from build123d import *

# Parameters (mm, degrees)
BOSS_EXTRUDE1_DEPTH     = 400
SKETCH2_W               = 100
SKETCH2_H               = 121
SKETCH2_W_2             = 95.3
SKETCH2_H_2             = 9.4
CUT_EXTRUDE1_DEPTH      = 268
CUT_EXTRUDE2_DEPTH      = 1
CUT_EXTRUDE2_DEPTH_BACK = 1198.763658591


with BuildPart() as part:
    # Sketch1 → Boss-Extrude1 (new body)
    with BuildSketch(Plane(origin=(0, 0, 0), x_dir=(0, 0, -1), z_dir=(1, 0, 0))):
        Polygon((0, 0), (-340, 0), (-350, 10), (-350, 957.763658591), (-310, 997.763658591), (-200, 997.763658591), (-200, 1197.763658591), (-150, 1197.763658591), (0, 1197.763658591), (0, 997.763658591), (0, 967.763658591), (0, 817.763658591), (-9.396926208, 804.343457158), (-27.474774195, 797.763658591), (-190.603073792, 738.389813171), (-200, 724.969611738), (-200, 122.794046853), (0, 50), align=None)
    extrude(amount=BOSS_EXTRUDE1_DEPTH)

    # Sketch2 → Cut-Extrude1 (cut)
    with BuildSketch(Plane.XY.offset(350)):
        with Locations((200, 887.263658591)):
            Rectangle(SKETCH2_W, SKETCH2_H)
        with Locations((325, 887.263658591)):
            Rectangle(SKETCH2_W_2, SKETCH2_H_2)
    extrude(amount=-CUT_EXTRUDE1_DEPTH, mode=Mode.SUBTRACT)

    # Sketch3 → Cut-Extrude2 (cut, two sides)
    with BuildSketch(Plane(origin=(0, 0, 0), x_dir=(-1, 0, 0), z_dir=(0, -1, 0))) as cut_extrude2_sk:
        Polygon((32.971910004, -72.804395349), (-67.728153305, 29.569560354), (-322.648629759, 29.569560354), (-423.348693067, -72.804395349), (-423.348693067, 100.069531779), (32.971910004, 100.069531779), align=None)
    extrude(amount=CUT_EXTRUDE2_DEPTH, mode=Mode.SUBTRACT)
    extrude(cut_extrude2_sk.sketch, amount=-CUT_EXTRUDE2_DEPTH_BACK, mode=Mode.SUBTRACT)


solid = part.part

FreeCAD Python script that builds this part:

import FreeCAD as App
import Part
import Sketcher
Q = App.Units.Quantity


def add_polygon(sketch, points):
    """Adds a closed chain of lines whose ends are joined by coincident constraints."""
    first, n = sketch.GeometryCount, len(points)
    for a, b in zip(points, points[1:] + points[:1]):
        sketch.addGeometry(Part.LineSegment(App.Vector(*a, 0), App.Vector(*b, 0)), False)
    for i in range(n):
        sketch.addConstraint(Sketcher.Constraint("Coincident", first + i, 2, first + (i + 1) % n, 1))

doc = App.newDocument("Part")
body = doc.addObject("PartDesign::Body", "Body")

# Sketch on YZ plane
sketch1 = body.newObject("Sketcher::SketchObject", "Sketch")
sketch1.AttachmentSupport = (doc.getObject("YZ_Plane"), [""])
sketch1.MapMode = "FlatFace"
add_polygon(sketch1, [(0, 340), (0, 0), (50, 0), (123, 200), (725, 200), (738, 191), (798, 27), (804, 9), (818, 0), (1198, 0), (1198, 200), (998, 200), (998, 310), (958, 350), (10, 350)])  # lines 0-14
sketch1.addConstraint([
    Sketcher.Constraint("Vertical", 0),
    Sketcher.Constraint("Horizontal", 1),
    Sketcher.Constraint("Horizontal", 3),
    Sketcher.Constraint("Horizontal", 8),
    Sketcher.Constraint("Vertical", 9),
    Sketcher.Constraint("Horizontal", 10),
    Sketcher.Constraint("Vertical", 11),
    Sketcher.Constraint("Horizontal", 13),
    Sketcher.Constraint("Coincident", 0, 2, -1, 1),
    Sketcher.Constraint("PointOnObject", 7, 2, -1),
    Sketcher.Constraint("Parallel", 5, 6),
    Sketcher.Constraint("Parallel", 4, 7),
    Sketcher.Constraint("Perpendicular", 12, 14),
    Sketcher.Constraint("Horizontal", 3, 2, 9, 2),
    Sketcher.Constraint("Equal", 10, 9),
    Sketcher.Constraint("Equal", 4, 7),
    Sketcher.Constraint("DistanceX", 1, 1, 1, 2, Q("50 mm")),
    Sketcher.Constraint("DistanceX", 8, 1, 8, 2, Q("380 mm")),
    Sketcher.Constraint("DistanceX", 10, 2, 10, 1, Q("200 mm")),
    Sketcher.Constraint("DistanceY", 0, 2, 0, 1, Q("340 mm")),
    Sketcher.Constraint("DistanceY", 11, 1, 11, 2, Q("110 mm")),
    Sketcher.Constraint("Angle", 2, Q("70 deg")),
    Sketcher.Constraint("Angle", 4, Q("-35 deg")),
    Sketcher.Constraint("Angle", 5, Q("-70 deg")),
    Sketcher.Constraint("Angle", 12, Q("135 deg")),
    Sketcher.Constraint("DistanceY", -1, 1, 12, 2, Q("350 mm")),
    Sketcher.Constraint("DistanceX", 5, 2, 7, 2, Q("20 mm")),
    Sketcher.Constraint("DistanceX", 13, 2, 13, 1, Q("947.763659 mm")),
    Sketcher.Constraint("DistanceX", 3, 2, 4, 2, Q("13.420201 mm")),
])
pad1 = body.newObject("PartDesign::Pad", "Pad")
pad1.Profile = sketch1
pad1.Length = 400

# Sketch on XY plane
sketch2 = body.newObject("Sketcher::SketchObject", "Sketch001")
sketch2.AttachmentSupport = (doc.getObject("XY_Plane"), [""])
sketch2.MapMode = "FlatFace"
sketch2.AttachmentOffset = App.Placement(App.Vector(0, 0, 350), App.Rotation())
add_polygon(sketch2, [(150, 948), (150, 827), (250, 827), (250, 948)])  # lines 0-3
add_polygon(sketch2, [(277, 892), (277, 883), (373, 883), (373, 892)])  # lines 4-7
sketch2.addConstraint([
    Sketcher.Constraint("Vertical", 0),
    Sketcher.Constraint("Horizontal", 1),
    Sketcher.Constraint("Vertical", 2),
    Sketcher.Constraint("Horizontal", 3),
    Sketcher.Constraint("Vertical", 4),
    Sketcher.Constraint("Horizontal", 5),
    Sketcher.Constraint("Vertical", 6),
    Sketcher.Constraint("Horizontal", 7),
    Sketcher.Constraint("DistanceX", 1, 1, 1, 2, Q("100 mm")),
    Sketcher.Constraint("DistanceY", 0, 2, 0, 1, Q("121 mm")),
    Sketcher.Constraint("DistanceX", 5, 1, 5, 2, Q("95.3 mm")),
    Sketcher.Constraint("DistanceY", 4, 2, 4, 1, Q("9.4 mm")),
    Sketcher.Constraint("DistanceX", -1, 1, 0, 2, Q("150 mm")),
    Sketcher.Constraint("DistanceY", 1, 2, 4, 2, Q("55.8 mm")),
    Sketcher.Constraint("DistanceX", -1, 1, 4, 2, Q("277.35 mm")),
    Sketcher.Constraint("DistanceY", -1, 1, 0, 2, Q("826.763659 mm")),
])
pocket1 = body.newObject("PartDesign::Pocket", "Pocket")
pocket1.Profile = sketch2
pocket1.Length = 268

# Sketch on XZ plane
sketch3 = body.newObject("Sketcher::SketchObject", "Sketch002")
sketch3.AttachmentSupport = (doc.getObject("XZ_Plane"), [""])
sketch3.MapMode = "FlatFace"
add_polygon(sketch3, [(68, -30), (-33, 73), (-33, -100), (423, -100), (423, 73), (323, -30)])  # lines 0-5
sketch3.addConstraint([
    Sketcher.Constraint("Vertical", 1),
    Sketcher.Constraint("Horizontal", 2),
    Sketcher.Constraint("Vertical", 3),
    Sketcher.Constraint("Horizontal", 5),
    Sketcher.Constraint("Horizontal", 0, 2, 3, 2),
    Sketcher.Constraint("Equal", 0, 4),
    Sketcher.Constraint("DistanceX", 2, 1, 2, 2, Q("456.320603 mm")),
    Sketcher.Constraint("DistanceX", 5, 2, 5, 1, Q("254.920476 mm")),
    Sketcher.Constraint("DistanceY", 1, 2, 1, 1, Q("172.873927 mm")),
    Sketcher.Constraint("DistanceX", 0, 2, -1, 1, Q("32.97191 mm")),
    Sketcher.Constraint("DistanceY", 1, 2, -1, 1, Q("100.069532 mm")),
    Sketcher.Constraint("DistanceY", 4, 2, -1, 1, Q("29.56956 mm")),
])
pocket2 = body.newObject("PartDesign::Pocket", "Pocket001")
pocket2.Profile = sketch3
pocket2.Type = "ThroughAll"
pocket2.Midplane = True

doc.recompute()
